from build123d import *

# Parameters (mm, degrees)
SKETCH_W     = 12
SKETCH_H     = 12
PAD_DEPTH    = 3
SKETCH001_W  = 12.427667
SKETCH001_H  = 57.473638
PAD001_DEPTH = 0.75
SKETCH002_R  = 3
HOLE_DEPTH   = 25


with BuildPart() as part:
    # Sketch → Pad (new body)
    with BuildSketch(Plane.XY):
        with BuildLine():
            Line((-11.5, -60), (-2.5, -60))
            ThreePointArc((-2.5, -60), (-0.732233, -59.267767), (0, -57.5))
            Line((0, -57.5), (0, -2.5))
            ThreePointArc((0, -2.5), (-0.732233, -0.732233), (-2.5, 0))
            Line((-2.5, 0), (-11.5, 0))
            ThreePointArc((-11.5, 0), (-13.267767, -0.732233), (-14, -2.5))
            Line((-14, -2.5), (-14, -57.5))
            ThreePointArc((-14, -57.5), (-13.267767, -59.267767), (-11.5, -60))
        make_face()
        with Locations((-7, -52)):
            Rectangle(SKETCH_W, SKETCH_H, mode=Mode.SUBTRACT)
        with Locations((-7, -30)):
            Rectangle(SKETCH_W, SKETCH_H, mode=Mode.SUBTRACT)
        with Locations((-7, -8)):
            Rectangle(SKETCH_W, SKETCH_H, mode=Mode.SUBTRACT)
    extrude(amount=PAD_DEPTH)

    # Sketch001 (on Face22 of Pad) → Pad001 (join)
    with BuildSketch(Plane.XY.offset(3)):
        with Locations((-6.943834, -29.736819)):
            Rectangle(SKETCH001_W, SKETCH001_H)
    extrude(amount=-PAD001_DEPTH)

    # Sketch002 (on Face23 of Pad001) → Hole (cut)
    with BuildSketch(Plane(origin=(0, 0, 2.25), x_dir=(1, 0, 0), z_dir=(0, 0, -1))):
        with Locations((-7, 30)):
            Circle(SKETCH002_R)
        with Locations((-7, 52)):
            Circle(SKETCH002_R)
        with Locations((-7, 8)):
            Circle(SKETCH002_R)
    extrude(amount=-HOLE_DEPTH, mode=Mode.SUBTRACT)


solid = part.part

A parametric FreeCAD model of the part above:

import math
import FreeCAD as App
import Part
import Sketcher

doc = App.newDocument("Part")
body = doc.addObject("PartDesign::Body", "Body")

sketch1 = body.newObject("Sketcher::SketchObject", "Sketch")
sketch1.AttachmentSupport = (doc.getObject("XY_Plane"), [""])
sketch1.MapMode = "FlatFace"
sketch1.addGeometry([
    Part.LineSegment(App.Vector(-11.5, -60, 0), App.Vector(-2.5, -60, 0)),
    Part.ArcOfCircle(Part.Circle(App.Vector(-2.5, -57.5, 0), App.Vector(0, 0, 1), 2.5), math.radians(-90), math.radians(0)),
    Part.LineSegment(App.Vector(0, -57.5, 0), App.Vector(0, -2.5, 0)),
    Part.ArcOfCircle(Part.Circle(App.Vector(-2.5, -2.5, 0), App.Vector(0, 0, 1), 2.5), math.radians(0), math.radians(90)),
    Part.LineSegment(App.Vector(-2.5, 0, 0), App.Vector(-11.5, 0, 0)),
    Part.ArcOfCircle(Part.Circle(App.Vector(-11.5, -2.5, 0), App.Vector(0, 0, 1), 2.5), math.radians(90), math.radians(180)),
    Part.LineSegment(App.Vector(-14, -2.5, 0), App.Vector(-14, -57.5, 0)),
    Part.ArcOfCircle(Part.Circle(App.Vector(-11.5, -57.5, 0), App.Vector(0, 0, 1), 2.5), math.radians(180), math.radians(270)),
    Part.LineSegment(App.Vector(-1, -58, 0), App.Vector(-13, -58, 0)),
    Part.LineSegment(App.Vector(-13, -58, 0), App.Vector(-13, -46, 0)),
    Part.LineSegment(App.Vector(-13, -46, 0), App.Vector(-1, -46, 0)),
    Part.LineSegment(App.Vector(-1, -46, 0), App.Vector(-1, -58, 0)),
    Part.LineSegment(App.Vector(-1, -36, 0), App.Vector(-13, -36, 0)),
    Part.LineSegment(App.Vector(-13, -36, 0), App.Vector(-13, -24, 0)),
    Part.LineSegment(App.Vector(-13, -24, 0), App.Vector(-1, -24, 0)),
    Part.LineSegment(App.Vector(-1, -24, 0), App.Vector(-1, -36, 0)),
    Part.LineSegment(App.Vector(-1, -14, 0), App.Vector(-13, -14, 0)),
    Part.LineSegment(App.Vector(-13, -14, 0), App.Vector(-13, -2, 0)),
    Part.LineSegment(App.Vector(-13, -2, 0), App.Vector(-1, -2, 0)),
    Part.LineSegment(App.Vector(-1, -2, 0), App.Vector(-1, -14, 0)),
], False)
sketch1.addConstraint([
    Sketcher.Constraint("Tangent", 0, 2, 1, 1),
    Sketcher.Constraint("Tangent", 1, 2, 2, 1),
    Sketcher.Constraint("Tangent", 2, 2, 3, 1),
    Sketcher.Constraint("Tangent", 3, 2, 4, 1),
    Sketcher.Constraint("Tangent", 4, 2, 5, 1),
    Sketcher.Constraint("Tangent", 5, 2, 6, 1),
    Sketcher.Constraint("Tangent", 6, 2, 7, 1),
    Sketcher.Constraint("Tangent", 7, 2, 0, 1),
    Sketcher.Constraint("Coincident", 8, 2, 9, 1),
    Sketcher.Constraint("Coincident", 9, 2, 10, 1),
    Sketcher.Constraint("Coincident", 10, 2, 11, 1),
    Sketcher.Constraint("Coincident", 11, 2, 8, 1),
    Sketcher.Constraint("Coincident", 12, 2, 13, 1),
    Sketcher.Constraint("Coincident", 13, 2, 14, 1),
    Sketcher.Constraint("Coincident", 14, 2, 15, 1),
    Sketcher.Constraint("Coincident", 15, 2, 12, 1),
    Sketcher.Constraint("Coincident", 16, 2, 17, 1),
    Sketcher.Constraint("Coincident", 17, 2, 18, 1),
    Sketcher.Constraint("Coincident", 18, 2, 19, 1),
    Sketcher.Constraint("Coincident", 19, 2, 16, 1),
    Sketcher.Constraint("Horizontal", 0),
    Sketcher.Constraint("Vertical", 2),
    Sketcher.Constraint("Horizontal", 4),
    Sketcher.Constraint("Vertical", 6),
    Sketcher.Constraint("Horizontal", 8),
    Sketcher.Constraint("Vertical", 9),
    Sketcher.Constraint("Horizontal", 10),
    Sketcher.Constraint("Vertical", 11),
    Sketcher.Constraint("Horizontal", 12),
    Sketcher.Constraint("Vertical", 13),
    Sketcher.Constraint("Horizontal", 14),
    Sketcher.Constraint("Vertical", 15),
    Sketcher.Constraint("Horizontal", 16),
    Sketcher.Constraint("Vertical", 17),
    Sketcher.Constraint("Horizontal", 18),
    Sketcher.Constraint("Vertical", 19),
    Sketcher.Constraint("Equal", 1, 3),
    Sketcher.Constraint("Equal", 3, 5),
    Sketcher.Constraint("Equal", 5, 7),
    Sketcher.Constraint("PointOnObject", 1, 2, -2),
    Sketcher.Constraint("PointOnObject", 3, 2, -1),
    Sketcher.Constraint("Vertical", 9, 2, 12, 2),
    Sketcher.Constraint("Vertical", 11, 2, 14, 2),
    Sketcher.Constraint("Vertical", 13, 2, 16, 2),
    Sketcher.Constraint("Vertical", 15, 2, 18, 2),
    Sketcher.Constraint("Equal", 18, 9),
    Sketcher.Constraint("Equal", 11, 13),
    Sketcher.Constraint("Equal", 15, 17),
    Sketcher.Constraint("Radius", 1, 2.5),
    Sketcher.Constraint("DistanceX", 0, 1, 0, 2, 9.0),
    Sketcher.Constraint("DistanceX", 8, 2, 8, 1, 12.0),
    Sketcher.Constraint("DistanceY", 2, 1, 2, 2, 55.0),
    Sketcher.Constraint("DistanceX", 8, 2, -1, 1, 13.0),
    Sketcher.Constraint("DistanceY", 8, 2, -1, 1, 58.0),
    Sketcher.Constraint("DistanceY", 12, 2, -1, 1, 36.0),
    Sketcher.Constraint("DistanceY", 16, 2, -1, 1, 14.0),
])
pad1 = body.newObject("PartDesign::Pad", "Pad")
pad1.Profile = sketch1
pad1.Length = 3

sketch2 = body.newObject("Sketcher::SketchObject", "Sketch001")
sketch2.AttachmentSupport = (doc.getObject("XY_Plane"), [""])
sketch2.MapMode = "FlatFace"
sketch2.AttachmentOffset = App.Placement(App.Vector(0, 0, 3), App.Rotation())
sketch2.addGeometry([
    Part.LineSegment(App.Vector(-13, -1, 0), App.Vector(-13, -58, 0)),
    Part.LineSegment(App.Vector(-13, -58, 0), App.Vector(-1, -58, 0)),
    Part.LineSegment(App.Vector(-1, -58, 0), App.Vector(-1, -1, 0)),
    Part.LineSegment(App.Vector(-1, -1, 0), App.Vector(-13, -1, 0)),
], False)
sketch2.addConstraint([
    Sketcher.Constraint("Coincident", 0, 2, 1, 1),
    Sketcher.Constraint("Coincident", 1, 2, 2, 1),
    Sketcher.Constraint("Coincident", 2, 2, 3, 1),
    Sketcher.Constraint("Coincident", 3, 2, 0, 1),
    Sketcher.Constraint("Vertical", 0),
    Sketcher.Constraint("Horizontal", 1),
    Sketcher.Constraint("Vertical", 2),
    Sketcher.Constraint("Horizontal", 3),
    Sketcher.Constraint("DistanceY", 2, 2, -1, 1, 1.0),
    Sketcher.Constraint("DistanceX", 1, 2, -1, 1, 0.730001),
    Sketcher.Constraint("DistanceX", 1, 1, 1, 2, 12.427667),
    Sketcher.Constraint("DistanceY", 0, 2, 0, 1, 57.473638),
])
pad2 = body.newObject("PartDesign::Pad", "Pad001")
pad2.Profile = sketch2
pad2.Length = 0.75
pad2.Reversed = True

sketch3 = body.newObject("Sketcher::SketchObject", "Sketch002")
sketch3.AttachmentSupport = (doc.getObject("XY_Plane"), [""])
sketch3.MapMode = "FlatFace"
sketch3.AttachmentOffset = App.Placement(App.Vector(0, 0, 2.25), App.Rotation())
sketch3.addGeometry([
    Part.Circle(App.Vector(-7, -30, 0), App.Vector(0, 0, 1), 3),
    Part.Circle(App.Vector(-7, -52, 0), App.Vector(0, 0, 1), 3),
    Part.Circle(App.Vector(-7, -8, 0), App.Vector(0, 0, 1), 3),
], False)
sketch3.addConstraint([
    Sketcher.Constraint("Equal", 0, 1),
    Sketcher.Constraint("Equal", 1, 2),
    Sketcher.Constraint("Vertical", 0, 3, 1, 3),
    Sketcher.Constraint("Vertical", 1, 3, 2, 3),
    Sketcher.Constraint("Diameter", 0, 6.0),
    Sketcher.Constraint("DistanceX", 0, 3, -1, 1, 7.0),
    Sketcher.Constraint("DistanceY", 0, 3, -1, 1, 30.0),
    Sketcher.Constraint("DistanceY", 1, 3, -1, 1, 52.0),
    Sketcher.Constraint("DistanceY", 2, 3, -1, 1, 8.0),
])
pocket1 = body.newObject("PartDesign::Pocket", "Pocket")
pocket1.Profile = sketch3
pocket1.Length = 25
pocket1.Reversed = True

doc.recompute()
